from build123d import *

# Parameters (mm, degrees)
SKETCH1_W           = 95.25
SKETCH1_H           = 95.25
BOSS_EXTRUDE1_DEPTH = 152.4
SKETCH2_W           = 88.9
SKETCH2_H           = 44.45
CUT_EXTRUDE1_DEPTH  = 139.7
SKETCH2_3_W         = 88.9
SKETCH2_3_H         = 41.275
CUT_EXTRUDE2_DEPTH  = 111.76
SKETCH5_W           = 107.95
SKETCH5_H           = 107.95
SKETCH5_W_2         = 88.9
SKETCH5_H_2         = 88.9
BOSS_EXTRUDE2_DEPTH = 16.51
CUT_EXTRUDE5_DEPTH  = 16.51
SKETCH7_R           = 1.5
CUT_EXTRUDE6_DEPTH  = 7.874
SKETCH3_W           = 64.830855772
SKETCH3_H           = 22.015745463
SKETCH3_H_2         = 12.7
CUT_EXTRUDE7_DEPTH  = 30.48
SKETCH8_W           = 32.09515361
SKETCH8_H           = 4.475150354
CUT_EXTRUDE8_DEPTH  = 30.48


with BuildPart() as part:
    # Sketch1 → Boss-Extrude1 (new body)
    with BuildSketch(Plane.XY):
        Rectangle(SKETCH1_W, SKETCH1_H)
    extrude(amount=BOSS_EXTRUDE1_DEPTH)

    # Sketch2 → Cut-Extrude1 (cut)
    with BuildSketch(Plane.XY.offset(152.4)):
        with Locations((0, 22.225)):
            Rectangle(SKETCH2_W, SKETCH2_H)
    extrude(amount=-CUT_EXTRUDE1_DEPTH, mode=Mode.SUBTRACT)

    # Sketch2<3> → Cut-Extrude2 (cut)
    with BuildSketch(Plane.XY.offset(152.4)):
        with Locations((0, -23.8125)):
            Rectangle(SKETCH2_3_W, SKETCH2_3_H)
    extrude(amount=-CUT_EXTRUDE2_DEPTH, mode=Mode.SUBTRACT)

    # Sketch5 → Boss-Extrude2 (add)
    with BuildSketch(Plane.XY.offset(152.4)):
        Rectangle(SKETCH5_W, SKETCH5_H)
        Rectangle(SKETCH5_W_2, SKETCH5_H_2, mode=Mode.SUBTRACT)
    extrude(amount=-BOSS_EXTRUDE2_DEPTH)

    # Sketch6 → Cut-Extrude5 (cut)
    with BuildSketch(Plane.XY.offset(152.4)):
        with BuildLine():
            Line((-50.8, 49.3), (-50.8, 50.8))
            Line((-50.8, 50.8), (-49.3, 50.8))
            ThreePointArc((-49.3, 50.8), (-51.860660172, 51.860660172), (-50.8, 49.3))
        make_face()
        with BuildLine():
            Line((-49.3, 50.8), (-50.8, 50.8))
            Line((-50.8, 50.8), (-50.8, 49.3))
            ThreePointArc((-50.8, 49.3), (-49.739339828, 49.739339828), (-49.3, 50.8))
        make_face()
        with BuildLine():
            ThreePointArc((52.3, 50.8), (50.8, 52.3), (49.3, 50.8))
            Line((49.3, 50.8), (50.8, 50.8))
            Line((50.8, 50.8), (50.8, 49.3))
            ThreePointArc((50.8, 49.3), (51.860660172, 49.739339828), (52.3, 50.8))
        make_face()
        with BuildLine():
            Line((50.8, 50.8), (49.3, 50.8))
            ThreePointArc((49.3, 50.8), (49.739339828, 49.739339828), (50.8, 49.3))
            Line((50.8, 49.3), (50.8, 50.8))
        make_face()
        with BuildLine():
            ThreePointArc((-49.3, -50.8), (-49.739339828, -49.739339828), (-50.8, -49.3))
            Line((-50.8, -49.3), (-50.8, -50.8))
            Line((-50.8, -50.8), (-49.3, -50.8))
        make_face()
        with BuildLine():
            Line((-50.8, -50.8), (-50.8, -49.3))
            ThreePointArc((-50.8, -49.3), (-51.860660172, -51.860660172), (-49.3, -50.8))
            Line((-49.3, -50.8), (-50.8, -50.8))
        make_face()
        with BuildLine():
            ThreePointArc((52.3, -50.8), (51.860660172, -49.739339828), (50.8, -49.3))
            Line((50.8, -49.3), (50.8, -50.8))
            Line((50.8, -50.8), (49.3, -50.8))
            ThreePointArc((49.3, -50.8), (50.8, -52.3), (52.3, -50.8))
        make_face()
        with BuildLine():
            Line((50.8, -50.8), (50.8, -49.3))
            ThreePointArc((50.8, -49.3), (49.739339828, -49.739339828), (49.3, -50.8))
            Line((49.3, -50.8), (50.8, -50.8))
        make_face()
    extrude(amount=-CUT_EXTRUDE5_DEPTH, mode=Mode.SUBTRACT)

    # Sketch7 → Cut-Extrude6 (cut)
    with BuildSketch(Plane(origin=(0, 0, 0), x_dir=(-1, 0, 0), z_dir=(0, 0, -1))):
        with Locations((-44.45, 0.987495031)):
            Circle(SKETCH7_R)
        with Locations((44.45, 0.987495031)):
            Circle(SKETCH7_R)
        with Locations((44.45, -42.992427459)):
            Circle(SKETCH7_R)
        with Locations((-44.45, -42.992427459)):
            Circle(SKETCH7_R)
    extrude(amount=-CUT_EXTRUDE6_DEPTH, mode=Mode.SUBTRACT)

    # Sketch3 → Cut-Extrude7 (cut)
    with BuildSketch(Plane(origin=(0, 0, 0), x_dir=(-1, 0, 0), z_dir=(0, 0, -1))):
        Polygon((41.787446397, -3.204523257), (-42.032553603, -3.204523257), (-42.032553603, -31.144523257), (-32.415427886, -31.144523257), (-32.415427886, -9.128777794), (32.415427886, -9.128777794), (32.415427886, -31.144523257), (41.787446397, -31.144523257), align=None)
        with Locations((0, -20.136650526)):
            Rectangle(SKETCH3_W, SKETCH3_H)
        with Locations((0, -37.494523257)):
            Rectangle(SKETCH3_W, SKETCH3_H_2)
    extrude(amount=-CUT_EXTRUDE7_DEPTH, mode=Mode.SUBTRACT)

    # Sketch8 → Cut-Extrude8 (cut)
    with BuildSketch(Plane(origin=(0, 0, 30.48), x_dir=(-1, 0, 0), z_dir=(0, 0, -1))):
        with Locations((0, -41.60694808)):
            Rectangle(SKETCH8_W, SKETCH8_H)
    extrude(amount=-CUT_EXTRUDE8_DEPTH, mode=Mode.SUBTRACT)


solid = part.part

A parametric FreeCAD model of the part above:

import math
import FreeCAD as App
import Part
import Sketcher
Q = App.Units.Quantity

doc = App.newDocument("Part")
body = doc.addObject("PartDesign::Body", "Body")

# Sketch on XY plane
sketch1 = doc.addObject("Sketcher::SketchObject", "Sketch")
body.addObject(sketch1)
sketch1.AttachmentSupport = (doc.XY_Plane, [""])
sketch1.MapMode = "FlatFace"
sketch1.addGeometry([
    Part.LineSegment(App.Vector(-48, 48, 0), App.Vector(-48, -48, 0)),
    Part.LineSegment(App.Vector(-48, -48, 0), App.Vector(48, -48, 0)),
    Part.LineSegment(App.Vector(48, -48, 0), App.Vector(48, 48, 0)),
    Part.LineSegment(App.Vector(48, 48, 0), App.Vector(-48, 48, 0)),
], False)
sketch1.addConstraint([
    Sketcher.Constraint("Coincident", 0, 2, 1, 1),
    Sketcher.Constraint("Coincident", 1, 2, 2, 1),
    Sketcher.Constraint("Coincident", 2, 2, 3, 1),
    Sketcher.Constraint("Coincident", 3, 2, 0, 1),
    Sketcher.Constraint("Vertical", 0),
    Sketcher.Constraint("Horizontal", 1),
    Sketcher.Constraint("Vertical", 2),
    Sketcher.Constraint("Horizontal", 3),
    Sketcher.Constraint("Symmetric", 0, 2, 2, 2, -1, 1),
    Sketcher.Constraint("Equal", 3, 0),
    Sketcher.Constraint("DistanceX", 1, 1, 1, 2, Q("3.75 in")),
])
pad1 = doc.addObject("PartDesign::Pad", "Pad")
body.addObject(pad1)
pad1.Profile = sketch1
pad1.Length = Q("6 in")

# Sketch on XY plane
sketch2 = doc.addObject("Sketcher::SketchObject", "Sketch001")
body.addObject(sketch2)
sketch2.AttachmentSupport = (doc.XY_Plane, [""])
sketch2.MapMode = "FlatFace"
sketch2.AttachmentOffset = App.Placement(App.Vector(0, 0, 6 * 25.4), App.Rotation())
sketch2.addGeometry([
    Part.LineSegment(App.Vector(-44, 44, 0), App.Vector(-44, 0, 0)),
    Part.LineSegment(App.Vector(-44, 0, 0), App.Vector(44, 0, 0)),
    Part.LineSegment(App.Vector(44, 0, 0), App.Vector(44, 44, 0)),
    Part.LineSegment(App.Vector(44, 44, 0), App.Vector(-44, 44, 0)),
], False)
sketch2.addConstraint([
    Sketcher.Constraint("Coincident", 0, 2, 1, 1),
    Sketcher.Constraint("Coincident", 1, 2, 2, 1),
    Sketcher.Constraint("Coincident", 2, 2, 3, 1),
    Sketcher.Constraint("Coincident", 3, 2, 0, 1),
    Sketcher.Constraint("Vertical", 0),
    Sketcher.Constraint("Horizontal", 1),
    Sketcher.Constraint("Vertical", 2),
    Sketcher.Constraint("Horizontal", 3),
    Sketcher.Constraint("Symmetric", 0, 2, 1, 2, -1, 1),
    Sketcher.Constraint("DistanceX", 1, 1, 1, 2, Q("3.5 in")),
    Sketcher.Constraint("DistanceY", 0, 2, 0, 1, Q("1.75 in")),
])
pocket1 = doc.addObject("PartDesign::Pocket", "Pocket")
body.addObject(pocket1)
pocket1.Profile = sketch2
pocket1.Length = Q("5.5 in")

# Sketch on XY plane
sketch3 = doc.addObject("Sketcher::SketchObject", "Sketch002")
body.addObject(sketch3)
sketch3.AttachmentSupport = (doc.XY_Plane, [""])
sketch3.MapMode = "FlatFace"
sketch3.AttachmentOffset = App.Placement(App.Vector(0, 0, 6 * 25.4), App.Rotation())
sketch3.addGeometry([
    Part.LineSegment(App.Vector(-44, -3, 0), App.Vector(-44, -44, 0)),
    Part.LineSegment(App.Vector(-44, -44, 0), App.Vector(44, -44, 0)),
    Part.LineSegment(App.Vector(44, -44, 0), App.Vector(44, -3, 0)),
    Part.LineSegment(App.Vector(44, -3, 0), App.Vector(-44, -3, 0)),
], False)
sketch3.addConstraint([
    Sketcher.Constraint("Coincident", 0, 2, 1, 1),
    Sketcher.Constraint("Coincident", 1, 2, 2, 1),
    Sketcher.Constraint("Coincident", 2, 2, 3, 1),
    Sketcher.Constraint("Coincident", 3, 2, 0, 1),
    Sketcher.Constraint("Vertical", 0),
    Sketcher.Constraint("Horizontal", 1),
    Sketcher.Constraint("Vertical", 2),
    Sketcher.Constraint("Horizontal", 3),
    Sketcher.Constraint("DistanceX", 1, 1, 1, 2, Q("3.5 in")),
    Sketcher.Constraint("DistanceY", 0, 2, 0, 1, Q("1.625 in")),
    Sketcher.Constraint("DistanceX", 0, 2, -1, 1, Q("1.75 in")),
    Sketcher.Constraint("DistanceY", 0, 2, -1, 1, Q("1.75 in")),
])
pocket2 = doc.addObject("PartDesign::Pocket", "Pocket001")
body.addObject(pocket2)
pocket2.Profile = sketch3
pocket2.Length = Q("4.4 in")

# Sketch on XY plane
sketch4 = doc.addObject("Sketcher::SketchObject", "Sketch003")
body.addObject(sketch4)
sketch4.AttachmentSupport = (doc.XY_Plane, [""])
sketch4.MapMode = "FlatFace"
sketch4.AttachmentOffset = App.Placement(App.Vector(0, 0, 6 * 25.4), App.Rotation())
sketch4.addGeometry([
    Part.LineSegment(App.Vector(-54, 54, 0), App.Vector(-54, -54, 0)),  # 0
    Part.LineSegment(App.Vector(-54, -54, 0), App.Vector(54, -54, 0)),  # 1
    Part.LineSegment(App.Vector(54, -54, 0), App.Vector(54, 54, 0)),  # 2
    Part.LineSegment(App.Vector(54, 54, 0), App.Vector(-54, 54, 0)),  # 3
    Part.LineSegment(App.Vector(44, -44, 0), App.Vector(-44, -44, 0)),  # 4
    Part.LineSegment(App.Vector(-44, -44, 0), App.Vector(-44, 44, 0)),  # 5
    Part.LineSegment(App.Vector(-44, 44, 0), App.Vector(44, 44, 0)),  # 6
    Part.LineSegment(App.Vector(44, 44, 0), App.Vector(44, -44, 0)),  # 7
], False)
sketch4.addConstraint([
    Sketcher.Constraint("Coincident", 0, 2, 1, 1),
    Sketcher.Constraint("Coincident", 1, 2, 2, 1),
    Sketcher.Constraint("Coincident", 2, 2, 3, 1),
    Sketcher.Constraint("Coincident", 3, 2, 0, 1),
    Sketcher.Constraint("Coincident", 4, 2, 5, 1),
    Sketcher.Constraint("Coincident", 5, 2, 6, 1),
    Sketcher.Constraint("Coincident", 6, 2, 7, 1),
    Sketcher.Constraint("Coincident", 7, 2, 4, 1),
    Sketcher.Constraint("Vertical", 0),
    Sketcher.Constraint("Horizontal", 1),
    Sketcher.Constraint("Vertical", 2),
    Sketcher.Constraint("Horizontal", 3),
    Sketcher.Constraint("Horizontal", 4),
    Sketcher.Constraint("Vertical", 5),
    Sketcher.Constraint("Horizontal", 6),
    Sketcher.Constraint("Vertical", 7),
    Sketcher.Constraint("Symmetric", 0, 2, 2, 2, -1, 1),
    Sketcher.Constraint("Symmetric", 4, 2, 6, 2, -1, 1),
    Sketcher.Constraint("Equal", 3, 0),
    Sketcher.Constraint("Equal", 6, 5),
    Sketcher.Constraint("DistanceX", 4, 2, 4, 1, Q("3.5 in")),
    Sketcher.Constraint("DistanceX", 1, 1, 1, 2, Q("4.25 in")),
])
pad2 = doc.addObject("PartDesign::Pad", "Pad001")
body.addObject(pad2)
pad2.Profile = sketch4
pad2.Length = Q("0.65 in")
pad2.Reversed = True

# Sketch on XY plane
sketch5 = doc.addObject("Sketcher::SketchObject", "Sketch004")
body.addObject(sketch5)
sketch5.AttachmentSupport = (doc.XY_Plane, [""])
sketch5.MapMode = "FlatFace"
sketch5.AttachmentOffset = App.Placement(App.Vector(0, 0, 6 * 25.4), App.Rotation())
sketch5.addGeometry([
    Part.ArcOfCircle(Part.Circle(App.Vector(-50.8, 50.8, 0), App.Vector(0, 0, 1), 1.5), math.radians(0), math.radians(270)),  # 0
    Part.ArcOfCircle(Part.Circle(App.Vector(-50.8, 50.8, 0), App.Vector(0, 0, 1), 1.5), math.radians(-90), math.radians(0)),  # 1
    Part.ArcOfCircle(Part.Circle(App.Vector(50.8, 50.8, 0), App.Vector(0, 0, 1), 1.5), math.radians(0), math.radians(180)),  # 2
    Part.ArcOfCircle(Part.Circle(App.Vector(50.8, 50.8, 0), App.Vector(0, 0, 1), 1.5), math.radians(180), math.radians(270)),  # 3
    Part.ArcOfCircle(Part.Circle(App.Vector(50.8, 50.8, 0), App.Vector(0, 0, 1), 1.5), math.radians(-90), math.radians(0)),  # 4
    Part.ArcOfCircle(Part.Circle(App.Vector(-50.8, -50.8, 0), App.Vector(0, 0, 1), 1.5), math.radians(0), math.radians(90)),  # 5
    Part.ArcOfCircle(Part.Circle(App.Vector(-50.8, -50.8, 0), App.Vector(0, 0, 1), 1.5), math.radians(90), math.radians(360)),  # 6
    Part.ArcOfCircle(Part.Circle(App.Vector(50.8, -50.8, 0), App.Vector(0, 0, 1), 1.5), math.radians(0), math.radians(90)),  # 7
    Part.ArcOfCircle(Part.Circle(App.Vector(50.8, -50.8, 0), App.Vector(0, 0, 1), 1.5), math.radians(90), math.radians(180)),  # 8
    Part.ArcOfCircle(Part.Circle(App.Vector(50.8, -50.8, 0), App.Vector(0, 0, 1), 1.5), math.radians(180), math.radians(360)),  # 9
], False)
sketch5.addConstraint([
    Sketcher.Constraint("Tangent", 0, 1, 1, 2),
    Sketcher.Constraint("Coincident", 1, 1, 0, 2),
    Sketcher.Constraint("Tangent", 2, 2, 3, 1),
    Sketcher.Constraint("Tangent", 3, 2, 4, 1),
    Sketcher.Constraint("Tangent", 4, 2, 2, 1),
    Sketcher.Constraint("Tangent", 5, 1, 6, 2),
    Sketcher.Constraint("Coincident", 6, 1, 5, 2),
    Sketcher.Constraint("Tangent", 7, 2, 8, 1),
    Sketcher.Constraint("Tangent", 8, 2, 9, 1),
    Sketcher.Constraint("Tangent", 9, 2, 7, 1),
    Sketcher.Constraint("Equal", 1, 2),
    Sketcher.Constraint("Equal", 4, 5),
    Sketcher.Constraint("Equal", 6, 7),
    Sketcher.Constraint("Symmetric", 2, 3, 5, 3, -1, 1),
    Sketcher.Constraint("Symmetric", 0, 3, 7, 3, -1, 1),
    Sketcher.Constraint("Symmetric", 0, 3, 2, 3, -2),
    Sketcher.Constraint("Horizontal", 4, 3, 0, 1),
    Sketcher.Constraint("Horizontal", 0, 1, 2, 2),
    Sketcher.Constraint("Horizontal", 2, 2, 4, 2),
    Sketcher.Constraint("Horizontal", 9, 3, 5, 1),
    Sketcher.Constraint("Horizontal", 5, 1, 8, 2),
    Sketcher.Constraint("Horizontal", 8, 2, 9, 2),
    Sketcher.Constraint("Vertical", 6, 3, 1, 1),
    Sketcher.Constraint("Vertical", 9, 3, 3, 2),
    Sketcher.Constraint("Vertical", 1, 1, 6, 1),
    Sketcher.Constraint("Vertical", 3, 2, 7, 2),
    Sketcher.Constraint("DistanceX", 0, 3, -1, 1, Q("2 in")),
    Sketcher.Constraint("DistanceY", -1, 1, 0, 3, Q("2 in")),
    Sketcher.Constraint("Radius", 0, 1.5),
])
pocket3 = doc.addObject("PartDesign::Pocket", "Pocket002")
body.addObject(pocket3)
pocket3.Profile = sketch5
pocket3.Length = Q("0.65 in")

# Sketch on XY plane
sketch6 = doc.addObject("Sketcher::SketchObject", "Sketch005")
body.addObject(sketch6)
sketch6.AttachmentSupport = (doc.XY_Plane, [""])
sketch6.MapMode = "FlatFace"
sketch6.addGeometry([
    Part.Circle(App.Vector(44.5, 1, 0), App.Vector(0, 0, 1), 1.5),
    Part.Circle(App.Vector(-44.5, 1, 0), App.Vector(0, 0, 1), 1.5),
    Part.Circle(App.Vector(-44.5, -43, 0), App.Vector(0, 0, 1), 1.5),
    Part.Circle(App.Vector(44.5, -43, 0), App.Vector(0, 0, 1), 1.5),
], False)
sketch6.addConstraint([
    Sketcher.Constraint("Equal", 0, 1),
    Sketcher.Constraint("Equal", 1, 2),
    Sketcher.Constraint("Equal", 2, 3),
    Sketcher.Constraint("Symmetric", 0, 3, 1, 3, -2),
    Sketcher.Constraint("Symmetric", 2, 3, 3, 3, -2),
    Sketcher.Constraint("Vertical", 1, 3, 2, 3),
    Sketcher.Constraint("DistanceX", 1, 3, 0, 3, Q("3.5 in")),
    Sketcher.Constraint("Diameter", 0, 3.0),
    Sketcher.Constraint("DistanceY", -1, 1, 0, 3, 0.987495),
    Sketcher.Constraint("DistanceY", 2, 3, -1, 1, 42.992427),
])
pocket4 = doc.addObject("PartDesign::Pocket", "Pocket003")
body.addObject(pocket4)
pocket4.Profile = sketch6
pocket4.Length = Q("0.31 in")
pocket4.Reversed = True

# Sketch on XY plane
sketch7 = doc.addObject("Sketcher::SketchObject", "Sketch006")
body.addObject(sketch7)
sketch7.AttachmentSupport = (doc.XY_Plane, [""])
sketch7.MapMode = "FlatFace"
sketch7.addGeometry([
    Part.LineSegment(App.Vector(-42, -3, 0), App.Vector(42, -3, 0)),  # 0
    Part.LineSegment(App.Vector(42, -3, 0), App.Vector(42, -31, 0)),  # 1
    Part.LineSegment(App.Vector(42, -31, 0), App.Vector(32, -31, 0)),  # 2
    Part.LineSegment(App.Vector(32, -31, 0), App.Vector(32, -44, 0)),  # 3
    Part.LineSegment(App.Vector(32, -44, 0), App.Vector(-32, -44, 0)),  # 4
    Part.LineSegment(App.Vector(-32, -44, 0), App.Vector(-32, -31, 0)),  # 5
    Part.LineSegment(App.Vector(-32, -31, 0), App.Vector(-42, -31, 0)),  # 6
    Part.LineSegment(App.Vector(-42, -31, 0), App.Vector(-42, -3, 0)),  # 7
], False)
sketch7.addConstraint([
    Sketcher.Constraint("Coincident", 0, 2, 1, 1),
    Sketcher.Constraint("Coincident", 1, 2, 2, 1),
    Sketcher.Constraint("Coincident", 2, 2, 3, 1),
    Sketcher.Constraint("Coincident", 3, 2, 4, 1),
    Sketcher.Constraint("Coincident", 4, 2, 5, 1),
    Sketcher.Constraint("Coincident", 5, 2, 6, 1),
    Sketcher.Constraint("Coincident", 6, 2, 7, 1),
    Sketcher.Constraint("Coincident", 7, 2, 0, 1),
    Sketcher.Constraint("Horizontal", 0),
    Sketcher.Constraint("Vertical", 1),
    Sketcher.Constraint("Horizontal", 2),
    Sketcher.Constraint("Vertical", 3),
    Sketcher.Constraint("Horizontal", 4),
    Sketcher.Constraint("Vertical", 5),
    Sketcher.Constraint("Horizontal", 6),
    Sketcher.Constraint("Vertical", 7),
    Sketcher.Constraint("Symmetric", 2, 2, 5, 2, -2),
    Sketcher.Constraint("DistanceX", 0, 1, 0, 2, Q("3.3 in")),
    Sketcher.Constraint("DistanceY", 1, 2, 1, 1, Q("1.1 in")),
    Sketcher.Constraint("DistanceY", 3, 2, 3, 1, Q("0.5 in")),
    Sketcher.Constraint("DistanceX", 6, 2, 6, 1, 9.372019),
    Sketcher.Constraint("DistanceX", 2, 2, 2, 1, 9.617126),
    Sketcher.Constraint("DistanceY", 0, 2, -1, 1, 3.204523),
])
pocket5 = doc.addObject("PartDesign::Pocket", "Pocket004")
body.addObject(pocket5)
pocket5.Profile = sketch7
pocket5.Length = Q("1.2 in")
pocket5.Reversed = True

# Sketch on XY plane
sketch8 = doc.addObject("Sketcher::SketchObject", "Sketch007")
body.addObject(sketch8)
sketch8.AttachmentSupport = (doc.XY_Plane, [""])
sketch8.MapMode = "FlatFace"
sketch8.AttachmentOffset = App.Placement(App.Vector(0, 0, 1.2 * 25.4), App.Rotation())
sketch8.addGeometry([
    Part.LineSegment(App.Vector(16, -39.4, 0), App.Vector(16, -43.8, 0)),
    Part.LineSegment(App.Vector(16, -43.8, 0), App.Vector(-16, -43.8, 0)),
    Part.LineSegment(App.Vector(-16, -43.8, 0), App.Vector(-16, -39.4, 0)),
    Part.LineSegment(App.Vector(-16, -39.4, 0), App.Vector(16, -39.4, 0)),
], False)
sketch8.addConstraint([
    Sketcher.Constraint("Coincident", 0, 2, 1, 1),
    Sketcher.Constraint("Coincident", 1, 2, 2, 1),
    Sketcher.Constraint("Coincident", 2, 2, 3, 1),
    Sketcher.Constraint("Coincident", 3, 2, 0, 1),
    Sketcher.Constraint("Vertical", 0),
    Sketcher.Constraint("Horizontal", 1),
    Sketcher.Constraint("Vertical", 2),
    Sketcher.Constraint("Horizontal", 3),
    Sketcher.Constraint("DistanceY", 0, 2, 0, 1, 4.47515),
    Sketcher.Constraint("DistanceX", 1, 2, 1, 1, 32.095154),
    Sketcher.Constraint("DistanceX", -1, 1, 0, 2, 16.047577),
    Sketcher.Constraint("DistanceY", 0, 2, -1, 1, 43.844523),
])
pocket6 = doc.addObject("PartDesign::Pocket", "Pocket005")
body.addObject(pocket6)
pocket6.Profile = sketch8
pocket6.Length = Q("1.2 in")
pocket6.Reversed = True

doc.recompute()
